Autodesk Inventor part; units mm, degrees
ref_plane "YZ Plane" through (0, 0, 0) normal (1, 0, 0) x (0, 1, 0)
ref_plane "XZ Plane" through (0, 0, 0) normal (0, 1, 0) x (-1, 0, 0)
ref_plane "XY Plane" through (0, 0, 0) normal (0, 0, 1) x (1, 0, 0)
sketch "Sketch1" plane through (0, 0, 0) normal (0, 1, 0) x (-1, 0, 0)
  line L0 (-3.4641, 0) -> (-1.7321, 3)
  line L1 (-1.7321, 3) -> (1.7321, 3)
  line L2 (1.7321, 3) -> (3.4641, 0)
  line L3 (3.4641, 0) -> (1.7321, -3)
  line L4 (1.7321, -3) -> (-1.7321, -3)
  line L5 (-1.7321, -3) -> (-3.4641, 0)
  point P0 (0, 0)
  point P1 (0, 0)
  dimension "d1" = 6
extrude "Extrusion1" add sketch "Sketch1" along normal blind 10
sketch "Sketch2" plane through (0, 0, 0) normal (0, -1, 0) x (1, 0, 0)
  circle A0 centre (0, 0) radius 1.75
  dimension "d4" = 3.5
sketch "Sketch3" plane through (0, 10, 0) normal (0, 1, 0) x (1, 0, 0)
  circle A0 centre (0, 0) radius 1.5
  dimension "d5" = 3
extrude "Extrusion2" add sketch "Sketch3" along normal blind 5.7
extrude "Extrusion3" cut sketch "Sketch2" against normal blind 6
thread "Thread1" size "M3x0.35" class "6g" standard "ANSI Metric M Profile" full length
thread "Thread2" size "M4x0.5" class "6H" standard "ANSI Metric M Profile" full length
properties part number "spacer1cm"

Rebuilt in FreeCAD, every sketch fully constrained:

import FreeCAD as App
import Part
import Sketcher
from FreeCAD import Vector
Q = App.Units.Quantity

doc = App.newDocument("Part")
body = doc.addObject("PartDesign::Body", "Body")

sketch1 = body.newObject("Sketcher::SketchObject", "Sketch")
sketch1.AttachmentSupport = (doc.getObject("XZ_Plane"), [""])
sketch1.MapMode = "FlatFace"
sketch1.addGeometry([
    Part.LineSegment(Vector(1.7321, 3, 0), Vector(3.4641, 0, 0)),
    Part.LineSegment(Vector(3.4641, 0, 0), Vector(1.7321, -3, 0)),
    Part.LineSegment(Vector(1.7321, -3, 0), Vector(-1.7321, -3, 0)),
    Part.LineSegment(Vector(-1.7321, -3, 0), Vector(-3.4641, 0, 0)),
    Part.LineSegment(Vector(-3.4641, 0, 0), Vector(-1.7321, 3, 0)),
    Part.LineSegment(Vector(-1.7321, 3, 0), Vector(1.7321, 3, 0)),
], False)
sketch1.addConstraint([
    Sketcher.Constraint("Coincident", 0, 2, 1, 1),
    Sketcher.Constraint("Coincident", 1, 2, 2, 1),
    Sketcher.Constraint("Coincident", 2, 2, 3, 1),
    Sketcher.Constraint("Coincident", 3, 2, 4, 1),
    Sketcher.Constraint("Coincident", 4, 2, 5, 1),
    Sketcher.Constraint("Coincident", 5, 2, 0, 1),
    Sketcher.Constraint("Horizontal", 2),
    Sketcher.Constraint("Horizontal", 5),
    Sketcher.Constraint("Symmetric", 0, 2, 3, 2, -1, 1),
    Sketcher.Constraint("Symmetric", 1, 2, 4, 2, -1, 1),
    Sketcher.Constraint("PointOnObject", 0, 2, -1),
    Sketcher.Constraint("Parallel", 0, 3),
    Sketcher.Constraint("Vertical", 2, 2, 4, 2),
    Sketcher.Constraint("DistanceY", 2, 2, 4, 2, Q("6 mm")),
    Sketcher.Constraint("Angle", 0, Q("-60.0007 deg")),
    Sketcher.Constraint("DistanceX", 2, 2, 2, 1, Q("3.4642 mm")),
])
pad1 = body.newObject("PartDesign::Pad", "Pad")
pad1.Profile = sketch1
pad1.Length = 10
pad1.Reversed = True

sketch2 = body.newObject("Sketcher::SketchObject", "Sketch001")
sketch2.AttachmentSupport = (doc.getObject("XZ_Plane"), [""])
sketch2.MapMode = "FlatFace"
sketch2.AttachmentOffset = App.Placement(Vector(0, 0, -10), App.Rotation())
sketch2.addGeometry(Part.Circle(Vector(0, 0, 0), Vector(0, 0, 1), 1.5), False)
sketch2.addConstraint([
    Sketcher.Constraint("Coincident", 0, 3, -1, 1),
    Sketcher.Constraint("Diameter", 0, Q("3 mm")),
])
pad2 = body.newObject("PartDesign::Pad", "Pad001")
pad2.Profile = sketch2
pad2.Length = 5.7
pad2.Reversed = True

sketch3 = body.newObject("Sketcher::SketchObject", "Sketch002")
sketch3.AttachmentSupport = (doc.getObject("XZ_Plane"), [""])
sketch3.MapMode = "FlatFace"
sketch3.addGeometry(Part.Circle(Vector(0, 0, 0), Vector(0, 0, 1), 1.75), False)
sketch3.addConstraint([
    Sketcher.Constraint("Coincident", 0, 3, -1, 1),
    Sketcher.Constraint("Diameter", 0, Q("3.5 mm")),
])
pocket1 = body.newObject("PartDesign::Pocket", "Pocket")
pocket1.Profile = sketch3
pocket1.Length = 6

doc.recompute()
